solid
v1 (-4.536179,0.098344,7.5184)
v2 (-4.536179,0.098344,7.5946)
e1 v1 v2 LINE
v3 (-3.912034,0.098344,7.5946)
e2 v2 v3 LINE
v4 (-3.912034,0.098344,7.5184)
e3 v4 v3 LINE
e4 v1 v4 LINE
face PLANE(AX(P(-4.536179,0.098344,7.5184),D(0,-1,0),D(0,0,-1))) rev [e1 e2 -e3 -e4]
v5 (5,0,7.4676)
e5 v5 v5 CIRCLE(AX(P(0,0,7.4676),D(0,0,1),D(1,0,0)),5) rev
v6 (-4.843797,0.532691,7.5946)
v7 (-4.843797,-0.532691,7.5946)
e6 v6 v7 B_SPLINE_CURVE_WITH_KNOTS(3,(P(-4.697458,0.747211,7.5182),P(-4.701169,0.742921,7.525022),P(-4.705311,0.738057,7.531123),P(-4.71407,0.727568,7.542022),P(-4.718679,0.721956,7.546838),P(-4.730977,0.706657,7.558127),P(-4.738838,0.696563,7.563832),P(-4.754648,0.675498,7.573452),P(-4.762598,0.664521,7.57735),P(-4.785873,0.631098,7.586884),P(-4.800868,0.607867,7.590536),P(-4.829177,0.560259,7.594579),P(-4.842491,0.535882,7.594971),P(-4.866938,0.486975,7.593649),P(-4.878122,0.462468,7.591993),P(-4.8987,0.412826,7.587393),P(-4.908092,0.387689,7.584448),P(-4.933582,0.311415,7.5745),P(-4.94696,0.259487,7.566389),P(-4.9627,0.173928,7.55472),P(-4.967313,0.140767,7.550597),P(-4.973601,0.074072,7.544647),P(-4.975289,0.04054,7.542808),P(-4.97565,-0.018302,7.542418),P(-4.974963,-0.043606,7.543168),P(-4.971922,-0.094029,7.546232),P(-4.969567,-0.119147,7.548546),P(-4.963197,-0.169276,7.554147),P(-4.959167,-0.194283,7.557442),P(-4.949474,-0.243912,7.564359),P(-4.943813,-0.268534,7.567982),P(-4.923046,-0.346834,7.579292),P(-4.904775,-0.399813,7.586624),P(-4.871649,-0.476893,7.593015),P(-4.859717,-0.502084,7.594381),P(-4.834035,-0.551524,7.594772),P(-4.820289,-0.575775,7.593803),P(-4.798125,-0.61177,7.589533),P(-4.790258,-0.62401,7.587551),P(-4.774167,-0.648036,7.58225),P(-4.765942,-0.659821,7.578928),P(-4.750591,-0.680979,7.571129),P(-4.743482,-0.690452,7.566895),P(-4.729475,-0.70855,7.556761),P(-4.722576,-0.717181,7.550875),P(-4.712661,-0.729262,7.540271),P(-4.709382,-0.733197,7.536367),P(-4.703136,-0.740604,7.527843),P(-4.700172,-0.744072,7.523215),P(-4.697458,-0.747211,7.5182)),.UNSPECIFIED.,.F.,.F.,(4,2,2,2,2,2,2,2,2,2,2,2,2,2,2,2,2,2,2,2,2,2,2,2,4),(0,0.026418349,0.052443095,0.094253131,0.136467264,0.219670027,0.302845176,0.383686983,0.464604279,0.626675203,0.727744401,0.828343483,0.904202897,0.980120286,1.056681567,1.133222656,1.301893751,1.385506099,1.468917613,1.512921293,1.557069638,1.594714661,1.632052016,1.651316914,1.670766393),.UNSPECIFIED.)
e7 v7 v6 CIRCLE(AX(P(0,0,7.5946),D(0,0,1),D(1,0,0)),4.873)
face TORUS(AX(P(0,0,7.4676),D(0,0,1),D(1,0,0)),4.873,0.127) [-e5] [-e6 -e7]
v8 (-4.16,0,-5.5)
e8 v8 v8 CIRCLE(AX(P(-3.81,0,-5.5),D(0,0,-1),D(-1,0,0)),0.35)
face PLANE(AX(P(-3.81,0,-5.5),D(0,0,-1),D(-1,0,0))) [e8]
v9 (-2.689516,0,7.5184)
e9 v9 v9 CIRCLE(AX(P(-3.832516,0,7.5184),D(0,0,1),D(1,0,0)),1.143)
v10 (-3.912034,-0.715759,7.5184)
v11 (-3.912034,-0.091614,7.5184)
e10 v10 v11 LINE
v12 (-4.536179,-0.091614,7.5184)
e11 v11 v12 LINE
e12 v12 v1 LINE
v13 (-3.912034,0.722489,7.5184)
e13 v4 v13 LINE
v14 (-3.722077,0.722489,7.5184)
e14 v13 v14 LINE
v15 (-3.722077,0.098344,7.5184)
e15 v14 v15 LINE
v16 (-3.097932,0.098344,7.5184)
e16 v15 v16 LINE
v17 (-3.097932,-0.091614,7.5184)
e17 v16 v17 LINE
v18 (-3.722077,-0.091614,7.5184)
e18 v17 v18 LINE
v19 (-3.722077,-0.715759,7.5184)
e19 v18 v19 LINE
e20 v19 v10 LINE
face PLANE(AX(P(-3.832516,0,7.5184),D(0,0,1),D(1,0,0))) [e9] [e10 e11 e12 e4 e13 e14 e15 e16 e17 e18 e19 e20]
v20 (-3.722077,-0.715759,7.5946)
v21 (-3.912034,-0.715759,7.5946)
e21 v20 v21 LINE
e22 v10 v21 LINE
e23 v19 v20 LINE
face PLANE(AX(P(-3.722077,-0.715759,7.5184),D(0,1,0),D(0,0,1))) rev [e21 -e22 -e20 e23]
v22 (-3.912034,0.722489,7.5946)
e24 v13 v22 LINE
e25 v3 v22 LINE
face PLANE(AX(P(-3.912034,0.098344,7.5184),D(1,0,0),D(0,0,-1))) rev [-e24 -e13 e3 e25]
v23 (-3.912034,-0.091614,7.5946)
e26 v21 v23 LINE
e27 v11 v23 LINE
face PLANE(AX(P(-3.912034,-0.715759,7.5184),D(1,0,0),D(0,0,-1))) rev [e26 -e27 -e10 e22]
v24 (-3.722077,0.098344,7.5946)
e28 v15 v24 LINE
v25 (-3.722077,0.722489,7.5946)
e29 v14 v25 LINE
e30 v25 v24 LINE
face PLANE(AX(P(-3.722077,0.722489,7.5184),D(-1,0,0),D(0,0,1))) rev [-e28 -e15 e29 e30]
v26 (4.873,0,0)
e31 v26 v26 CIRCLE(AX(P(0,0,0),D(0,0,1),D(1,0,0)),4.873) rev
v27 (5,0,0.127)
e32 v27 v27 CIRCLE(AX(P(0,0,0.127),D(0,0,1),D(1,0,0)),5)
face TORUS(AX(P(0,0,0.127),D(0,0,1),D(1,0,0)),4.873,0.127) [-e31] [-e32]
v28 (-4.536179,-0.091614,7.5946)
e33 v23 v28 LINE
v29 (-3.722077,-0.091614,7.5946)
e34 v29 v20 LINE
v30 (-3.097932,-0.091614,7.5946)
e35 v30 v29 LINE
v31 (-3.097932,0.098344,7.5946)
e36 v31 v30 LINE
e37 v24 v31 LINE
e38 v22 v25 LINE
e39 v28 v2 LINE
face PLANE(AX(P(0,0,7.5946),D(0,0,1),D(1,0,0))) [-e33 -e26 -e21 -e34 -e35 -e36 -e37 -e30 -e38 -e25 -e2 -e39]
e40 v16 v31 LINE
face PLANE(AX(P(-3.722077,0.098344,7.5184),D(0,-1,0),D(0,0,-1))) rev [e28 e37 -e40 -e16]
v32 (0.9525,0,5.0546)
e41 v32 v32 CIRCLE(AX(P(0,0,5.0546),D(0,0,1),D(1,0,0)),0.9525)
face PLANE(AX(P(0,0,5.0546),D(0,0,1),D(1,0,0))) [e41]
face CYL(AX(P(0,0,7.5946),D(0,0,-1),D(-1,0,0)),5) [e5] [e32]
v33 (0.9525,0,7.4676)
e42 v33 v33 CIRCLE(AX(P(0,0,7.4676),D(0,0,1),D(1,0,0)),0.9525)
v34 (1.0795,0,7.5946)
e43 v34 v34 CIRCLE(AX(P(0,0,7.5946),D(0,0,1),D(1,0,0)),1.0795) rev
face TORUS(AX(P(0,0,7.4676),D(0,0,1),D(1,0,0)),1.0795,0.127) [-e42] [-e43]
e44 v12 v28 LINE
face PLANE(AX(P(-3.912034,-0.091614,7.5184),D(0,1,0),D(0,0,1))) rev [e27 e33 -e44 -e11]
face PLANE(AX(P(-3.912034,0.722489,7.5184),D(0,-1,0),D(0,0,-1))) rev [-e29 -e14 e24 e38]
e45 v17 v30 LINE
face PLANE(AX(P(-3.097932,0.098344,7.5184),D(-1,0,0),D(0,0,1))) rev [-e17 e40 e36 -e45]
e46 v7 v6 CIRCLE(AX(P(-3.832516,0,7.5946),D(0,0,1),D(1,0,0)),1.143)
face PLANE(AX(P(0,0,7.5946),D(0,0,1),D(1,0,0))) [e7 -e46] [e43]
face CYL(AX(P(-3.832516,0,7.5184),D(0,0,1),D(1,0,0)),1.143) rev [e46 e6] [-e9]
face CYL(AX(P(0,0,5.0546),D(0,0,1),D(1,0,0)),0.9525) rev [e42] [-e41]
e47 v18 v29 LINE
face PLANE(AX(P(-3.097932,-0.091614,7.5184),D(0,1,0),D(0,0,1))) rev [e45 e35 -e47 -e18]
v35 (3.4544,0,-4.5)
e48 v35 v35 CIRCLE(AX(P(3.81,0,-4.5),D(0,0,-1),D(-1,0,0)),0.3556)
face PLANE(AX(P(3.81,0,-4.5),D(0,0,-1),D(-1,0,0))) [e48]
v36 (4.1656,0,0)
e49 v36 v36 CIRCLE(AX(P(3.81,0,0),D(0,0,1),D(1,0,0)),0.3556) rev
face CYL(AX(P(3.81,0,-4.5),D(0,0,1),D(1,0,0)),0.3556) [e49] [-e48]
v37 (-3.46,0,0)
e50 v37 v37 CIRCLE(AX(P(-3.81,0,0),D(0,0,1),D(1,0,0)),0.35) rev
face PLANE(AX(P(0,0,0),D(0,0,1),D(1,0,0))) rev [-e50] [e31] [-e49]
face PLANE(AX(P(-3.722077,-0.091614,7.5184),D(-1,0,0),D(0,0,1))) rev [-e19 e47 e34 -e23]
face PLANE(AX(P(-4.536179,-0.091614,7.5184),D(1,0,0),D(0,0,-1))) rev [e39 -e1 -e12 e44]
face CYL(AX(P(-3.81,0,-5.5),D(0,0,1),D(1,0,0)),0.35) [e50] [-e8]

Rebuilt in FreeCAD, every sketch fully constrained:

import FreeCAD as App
import Part
import Sketcher
from FreeCAD import Vector
Q = App.Units.Quantity


def edges_at(feature, points):
    """Names of the edges that pass closest to the given points."""
    edges = feature.Shape.Edges
    near = lambda p: min(range(len(edges)), key=lambda i: edges[i].distToShape(Part.Vertex(*p))[0])
    return sorted({f"Edge{near(p) + 1}" for p in points})


def add_polygon(sketch, points):
    """Adds a closed chain of lines whose ends are joined by coincident constraints."""
    first, n = sketch.GeometryCount, len(points)
    for a, b in zip(points, points[1:] + points[:1]):
        sketch.addGeometry(Part.LineSegment(App.Vector(*a, 0), App.Vector(*b, 0)), False)
    for i in range(n):
        sketch.addConstraint(Sketcher.Constraint("Coincident", first + i, 2, first + (i + 1) % n, 1))

doc = App.newDocument("Part")
body = doc.addObject("PartDesign::Body", "Body")

sketch1 = body.newObject("Sketcher::SketchObject", "Sketch")
sketch1.AttachmentSupport = (doc.getObject("XY_Plane"), [""])
sketch1.MapMode = "FlatFace"
sketch1.addGeometry(Part.Circle(Vector(0, 0, 0), Vector(0, 0, 1), 5), False)
sketch1.addConstraint(Sketcher.Constraint("Coincident", 0, 3, -1, 1))
sketch1.addConstraint(Sketcher.Constraint("Diameter", 0, Q("10 mm")))
pad1 = body.newObject("PartDesign::Pad", "Pad")
pad1.Profile = sketch1
pad1.Length = Q("0.299 in")

sketch2 = body.newObject("Sketcher::SketchObject", "Sketch001")
sketch2.AttachmentSupport = (doc.getObject("XY_Plane"), [""])
sketch2.MapMode = "FlatFace"
sketch2.AttachmentOffset = App.Placement(Vector(0, 0, 0.299 * 25.4), App.Rotation())
sketch2.addGeometry(Part.Circle(Vector(0, 0, 0), Vector(0, 0, 1), 0.9525), False)
sketch2.addConstraint(Sketcher.Constraint("Coincident", 0, 3, -1, 1))
sketch2.addConstraint(Sketcher.Constraint("Diameter", 0, Q("0.075 in")))
pocket1 = body.newObject("PartDesign::Pocket", "Pocket")
pocket1.Profile = sketch2
pocket1.Length = Q("0.1 in")
doc.recompute()

fillet = body.newObject("PartDesign::Fillet", "Fillet")
fillet.Base = (pocket1, edges_at(pocket1, [(-5, 0, 0), (-5, 0, 7.595), (-0.953, 0, 7.595)]))
fillet.Radius = Q("0.005 in")

sketch3 = body.newObject("Sketcher::SketchObject", "Sketch002")
sketch3.AttachmentSupport = (doc.getObject("XY_Plane"), [""])
sketch3.MapMode = "FlatFace"
sketch3.addGeometry(Part.Circle(Vector(-3.81, 0, 0), Vector(0, 0, 1), 0.35), False)
sketch3.addConstraint(Sketcher.Constraint("PointOnObject", 0, 3, -1))
sketch3.addConstraint(Sketcher.Constraint("Diameter", 0, Q("0.7 mm")))
sketch3.addConstraint(Sketcher.Constraint("DistanceX", 0, 3, -1, 1, Q("0.15 in")))
pad2 = body.newObject("PartDesign::Pad", "Pad001")
pad2.Profile = sketch3
pad2.Length = 5.5
pad2.Reversed = True

sketch4 = body.newObject("Sketcher::SketchObject", "Sketch003")
sketch4.AttachmentSupport = (doc.getObject("XY_Plane"), [""])
sketch4.MapMode = "FlatFace"
sketch4.addGeometry(Part.Circle(Vector(3.81, 0, 0), Vector(0, 0, 1), 0.3556), False)
sketch4.addConstraint(Sketcher.Constraint("PointOnObject", 0, 3, -1))
sketch4.addConstraint(Sketcher.Constraint("Diameter", 0, Q("0.028 in")))
sketch4.addConstraint(Sketcher.Constraint("DistanceX", -1, 1, 0, 3, Q("0.15 in")))
pad3 = body.newObject("PartDesign::Pad", "Pad002")
pad3.Profile = sketch4
pad3.Length = 4.5
pad3.Reversed = True

sketch5 = body.newObject("Sketcher::SketchObject", "Sketch004")
sketch5.AttachmentSupport = (doc.getObject("XY_Plane"), [""])
sketch5.MapMode = "FlatFace"
sketch5.AttachmentOffset = App.Placement(Vector(0, 0, 0.299 * 25.4), App.Rotation())
sketch5.addGeometry(Part.Circle(Vector(-3.832516, 0, 0), Vector(0, 0, 1), 1.143), False)
add_polygon(sketch5, [(-4.536179, 0.098344), (-3.912034, 0.098344), (-3.912034, 0.722489), (-3.722077, 0.722489), (-3.722077, 0.098344), (-3.097932, 0.098344), (-3.097932, -0.091614), (-3.722077, -0.091614), (-3.722077, -0.715759), (-3.912034, -0.715759), (-3.912034, -0.091614), (-4.536179, -0.091614)])
sketch5.addConstraint(Sketcher.Constraint("Horizontal", 1))
sketch5.addConstraint(Sketcher.Constraint("Vertical", 2))
sketch5.addConstraint(Sketcher.Constraint("Horizontal", 3))
sketch5.addConstraint(Sketcher.Constraint("Vertical", 4))
sketch5.addConstraint(Sketcher.Constraint("Horizontal", 5))
sketch5.addConstraint(Sketcher.Constraint("Vertical", 6))
sketch5.addConstraint(Sketcher.Constraint("Horizontal", 7))
sketch5.addConstraint(Sketcher.Constraint("Vertical", 8))
sketch5.addConstraint(Sketcher.Constraint("Horizontal", 9))
sketch5.addConstraint(Sketcher.Constraint("Vertical", 10))
sketch5.addConstraint(Sketcher.Constraint("Horizontal", 11))
sketch5.addConstraint(Sketcher.Constraint("Vertical", 12))
sketch5.addConstraint(Sketcher.Constraint("PointOnObject", 0, 3, -1))
sketch5.addConstraint(Sketcher.Constraint("Horizontal", 1, 2, 4, 2))
sketch5.addConstraint(Sketcher.Constraint("Horizontal", 7, 2, 10, 2))
sketch5.addConstraint(Sketcher.Constraint("Vertical", 4, 2, 7, 2))
sketch5.addConstraint(Sketcher.Constraint("Vertical", 2, 2, 9, 2))
sketch5.addConstraint(Sketcher.Constraint("Equal", 1, 5))
sketch5.addConstraint(Sketcher.Constraint("Equal", 11, 2))
sketch5.addConstraint(Sketcher.Constraint("Equal", 9, 6))
sketch5.addConstraint(Sketcher.Constraint("Equal", 4, 8))
sketch5.addConstraint(Sketcher.Constraint("Diameter", 0, Q("0.09 in")))
sketch5.addConstraint(Sketcher.Constraint("DistanceX", 1, 1, 1, 2, Q("0.624145 mm")))
sketch5.addConstraint(Sketcher.Constraint("DistanceX", 3, 1, 3, 2, Q("0.189957 mm")))
sketch5.addConstraint(Sketcher.Constraint("DistanceY", -1, 1, 2, 2, Q("0.722489 mm")))
sketch5.addConstraint(Sketcher.Constraint("DistanceX", 5, 2, -1, 1, Q("3.097932 mm")))
sketch5.addConstraint(Sketcher.Constraint("DistanceX", 1, 2, 0, 3, Q("0.079518 mm")))
pocket2 = body.newObject("PartDesign::Pocket", "Pocket001")
pocket2.Profile = sketch5
pocket2.Length = Q("0.003 in")

doc.recompute()
